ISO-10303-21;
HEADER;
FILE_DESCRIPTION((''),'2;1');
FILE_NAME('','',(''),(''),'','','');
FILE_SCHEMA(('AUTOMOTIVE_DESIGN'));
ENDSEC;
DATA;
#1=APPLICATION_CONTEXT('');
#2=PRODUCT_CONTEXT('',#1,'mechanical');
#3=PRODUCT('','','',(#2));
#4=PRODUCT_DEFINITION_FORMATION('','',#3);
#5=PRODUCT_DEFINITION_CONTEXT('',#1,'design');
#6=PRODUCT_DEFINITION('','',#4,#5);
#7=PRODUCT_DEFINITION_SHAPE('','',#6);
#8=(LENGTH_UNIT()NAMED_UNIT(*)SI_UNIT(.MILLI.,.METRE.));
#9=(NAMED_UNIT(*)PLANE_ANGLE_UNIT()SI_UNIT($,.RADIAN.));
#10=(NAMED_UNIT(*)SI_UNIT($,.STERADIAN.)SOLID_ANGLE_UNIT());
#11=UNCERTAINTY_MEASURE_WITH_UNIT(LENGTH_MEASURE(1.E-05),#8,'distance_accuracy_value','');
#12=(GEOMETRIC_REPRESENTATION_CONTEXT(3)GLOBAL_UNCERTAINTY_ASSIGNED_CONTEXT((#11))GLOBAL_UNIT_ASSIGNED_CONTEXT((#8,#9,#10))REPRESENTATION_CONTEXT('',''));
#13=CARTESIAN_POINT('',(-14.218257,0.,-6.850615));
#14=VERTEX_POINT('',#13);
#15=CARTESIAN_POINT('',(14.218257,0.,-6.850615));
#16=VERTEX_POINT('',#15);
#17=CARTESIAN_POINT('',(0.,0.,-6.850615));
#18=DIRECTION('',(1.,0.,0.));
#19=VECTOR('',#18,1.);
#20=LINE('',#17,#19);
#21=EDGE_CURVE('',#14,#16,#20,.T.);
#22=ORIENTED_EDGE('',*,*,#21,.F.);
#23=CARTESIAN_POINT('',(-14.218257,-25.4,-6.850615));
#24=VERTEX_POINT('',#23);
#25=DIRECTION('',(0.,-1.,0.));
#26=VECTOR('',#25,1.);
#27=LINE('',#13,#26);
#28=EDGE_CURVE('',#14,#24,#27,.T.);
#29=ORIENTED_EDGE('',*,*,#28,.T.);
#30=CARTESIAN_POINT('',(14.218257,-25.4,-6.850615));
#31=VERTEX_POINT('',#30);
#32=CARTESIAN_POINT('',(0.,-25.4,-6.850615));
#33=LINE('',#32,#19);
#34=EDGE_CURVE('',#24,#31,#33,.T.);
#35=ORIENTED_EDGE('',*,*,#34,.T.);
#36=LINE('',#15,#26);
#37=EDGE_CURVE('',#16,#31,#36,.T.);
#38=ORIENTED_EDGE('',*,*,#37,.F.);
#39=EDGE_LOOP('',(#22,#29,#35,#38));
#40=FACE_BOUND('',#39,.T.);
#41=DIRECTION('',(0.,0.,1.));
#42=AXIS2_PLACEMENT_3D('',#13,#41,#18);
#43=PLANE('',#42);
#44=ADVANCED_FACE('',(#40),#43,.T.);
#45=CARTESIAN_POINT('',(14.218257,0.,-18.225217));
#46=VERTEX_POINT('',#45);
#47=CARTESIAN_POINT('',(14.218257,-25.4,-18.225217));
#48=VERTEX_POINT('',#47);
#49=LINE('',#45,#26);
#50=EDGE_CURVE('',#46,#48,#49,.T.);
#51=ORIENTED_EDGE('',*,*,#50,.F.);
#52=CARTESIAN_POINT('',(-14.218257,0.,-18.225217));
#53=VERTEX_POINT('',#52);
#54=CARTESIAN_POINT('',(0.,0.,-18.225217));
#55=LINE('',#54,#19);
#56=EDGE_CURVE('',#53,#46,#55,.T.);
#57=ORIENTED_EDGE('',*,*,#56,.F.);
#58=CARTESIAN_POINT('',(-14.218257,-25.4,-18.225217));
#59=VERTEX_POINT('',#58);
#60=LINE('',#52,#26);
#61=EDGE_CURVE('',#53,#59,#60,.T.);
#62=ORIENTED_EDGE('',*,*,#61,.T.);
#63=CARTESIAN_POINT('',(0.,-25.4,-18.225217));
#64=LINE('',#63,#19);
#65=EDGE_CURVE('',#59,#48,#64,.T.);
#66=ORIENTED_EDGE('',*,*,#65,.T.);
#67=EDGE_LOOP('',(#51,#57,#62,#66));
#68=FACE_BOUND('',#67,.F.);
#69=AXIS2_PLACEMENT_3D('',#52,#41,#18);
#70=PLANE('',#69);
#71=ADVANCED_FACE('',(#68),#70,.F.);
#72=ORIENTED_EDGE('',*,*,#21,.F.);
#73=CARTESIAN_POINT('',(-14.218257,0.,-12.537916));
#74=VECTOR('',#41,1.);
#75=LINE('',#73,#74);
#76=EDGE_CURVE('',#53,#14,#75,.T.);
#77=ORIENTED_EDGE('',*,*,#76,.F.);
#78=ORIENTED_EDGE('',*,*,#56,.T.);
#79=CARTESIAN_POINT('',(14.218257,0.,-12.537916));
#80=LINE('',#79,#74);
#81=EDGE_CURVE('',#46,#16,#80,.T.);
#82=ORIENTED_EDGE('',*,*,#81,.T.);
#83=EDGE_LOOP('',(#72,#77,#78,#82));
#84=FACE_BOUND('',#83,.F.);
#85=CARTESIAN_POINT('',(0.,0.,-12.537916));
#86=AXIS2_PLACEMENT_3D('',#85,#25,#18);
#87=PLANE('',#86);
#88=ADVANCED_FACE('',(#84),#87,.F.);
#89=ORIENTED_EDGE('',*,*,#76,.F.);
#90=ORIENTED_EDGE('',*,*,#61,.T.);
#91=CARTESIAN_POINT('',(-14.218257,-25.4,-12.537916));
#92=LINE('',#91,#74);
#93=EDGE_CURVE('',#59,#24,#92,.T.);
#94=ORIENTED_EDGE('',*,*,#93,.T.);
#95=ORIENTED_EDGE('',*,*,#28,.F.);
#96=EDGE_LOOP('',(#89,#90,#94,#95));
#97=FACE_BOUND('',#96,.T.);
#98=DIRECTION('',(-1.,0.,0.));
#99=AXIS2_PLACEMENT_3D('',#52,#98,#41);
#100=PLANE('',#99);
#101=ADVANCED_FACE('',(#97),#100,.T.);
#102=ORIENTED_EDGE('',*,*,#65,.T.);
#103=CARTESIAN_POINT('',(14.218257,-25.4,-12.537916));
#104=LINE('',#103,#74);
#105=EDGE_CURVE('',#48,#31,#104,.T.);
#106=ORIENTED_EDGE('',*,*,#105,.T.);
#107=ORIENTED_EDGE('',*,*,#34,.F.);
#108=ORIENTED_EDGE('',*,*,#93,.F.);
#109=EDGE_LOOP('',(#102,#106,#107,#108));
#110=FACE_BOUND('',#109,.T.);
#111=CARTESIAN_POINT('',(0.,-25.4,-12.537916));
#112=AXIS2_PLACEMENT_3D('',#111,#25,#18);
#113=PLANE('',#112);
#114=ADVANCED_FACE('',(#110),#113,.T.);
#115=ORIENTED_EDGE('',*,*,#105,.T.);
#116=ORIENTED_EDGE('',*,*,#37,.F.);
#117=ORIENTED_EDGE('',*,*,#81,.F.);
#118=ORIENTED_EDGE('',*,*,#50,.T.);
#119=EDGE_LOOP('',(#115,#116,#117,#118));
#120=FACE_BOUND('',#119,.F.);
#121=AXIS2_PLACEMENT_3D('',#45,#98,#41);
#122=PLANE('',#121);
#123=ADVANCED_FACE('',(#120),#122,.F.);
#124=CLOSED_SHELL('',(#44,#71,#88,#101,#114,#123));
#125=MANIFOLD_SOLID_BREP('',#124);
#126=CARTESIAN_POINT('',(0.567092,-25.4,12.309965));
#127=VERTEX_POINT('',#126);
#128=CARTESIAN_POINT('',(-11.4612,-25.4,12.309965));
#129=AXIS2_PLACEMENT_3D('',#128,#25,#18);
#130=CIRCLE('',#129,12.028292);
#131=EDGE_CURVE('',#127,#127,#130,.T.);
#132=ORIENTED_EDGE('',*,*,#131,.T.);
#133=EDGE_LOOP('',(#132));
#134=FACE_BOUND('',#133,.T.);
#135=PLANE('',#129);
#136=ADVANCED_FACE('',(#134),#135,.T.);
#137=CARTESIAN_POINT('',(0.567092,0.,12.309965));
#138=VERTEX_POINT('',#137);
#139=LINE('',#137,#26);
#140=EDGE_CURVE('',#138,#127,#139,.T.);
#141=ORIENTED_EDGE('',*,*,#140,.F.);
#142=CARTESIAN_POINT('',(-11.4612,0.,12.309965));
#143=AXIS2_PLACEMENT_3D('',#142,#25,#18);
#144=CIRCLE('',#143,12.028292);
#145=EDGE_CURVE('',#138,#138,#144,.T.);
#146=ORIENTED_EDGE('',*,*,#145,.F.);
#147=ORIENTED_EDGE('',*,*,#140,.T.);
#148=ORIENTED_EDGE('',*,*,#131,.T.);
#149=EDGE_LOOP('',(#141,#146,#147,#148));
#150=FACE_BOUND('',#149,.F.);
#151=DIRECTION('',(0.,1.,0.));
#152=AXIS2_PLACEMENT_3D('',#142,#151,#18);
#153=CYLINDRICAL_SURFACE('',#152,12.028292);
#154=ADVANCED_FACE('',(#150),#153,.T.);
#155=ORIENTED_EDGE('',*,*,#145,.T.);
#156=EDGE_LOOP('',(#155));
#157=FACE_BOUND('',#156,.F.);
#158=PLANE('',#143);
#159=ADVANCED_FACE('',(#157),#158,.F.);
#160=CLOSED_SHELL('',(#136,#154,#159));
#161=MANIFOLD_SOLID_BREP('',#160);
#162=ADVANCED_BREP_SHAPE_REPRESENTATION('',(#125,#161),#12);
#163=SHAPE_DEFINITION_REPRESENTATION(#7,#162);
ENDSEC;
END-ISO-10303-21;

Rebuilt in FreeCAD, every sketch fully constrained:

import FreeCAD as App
import Part
import Sketcher

V = App.Vector
Q = App.Units.Quantity

doc = App.newDocument("Part")
body = doc.addObject("PartDesign::Body", "Body")
body.AllowCompound = True

# Sketch on XZ plane
sketch1 = doc.addObject("Sketcher::SketchObject", "Sketch")
body.addObject(sketch1)
sketch1.AttachmentSupport = (doc.XZ_Plane, [""])
sketch1.MapMode = "FlatFace"
sketch1.addGeometry([
    Part.Circle(V(-11, 12, 0), V(0, 0, 1), 12),  # 0
    Part.LineSegment(V(-14, -7, 0), V(-14, -18, 0)),  # 1
    Part.LineSegment(V(-14, -18, 0), V(14, -18, 0)),  # 2
    Part.LineSegment(V(14, -18, 0), V(14, -7, 0)),  # 3
    Part.LineSegment(V(14, -7, 0), V(-14, -7, 0)),  # 4
], False)
sketch1.addConstraint([
    Sketcher.Constraint("Coincident", 1, 2, 2, 1),
    Sketcher.Constraint("Coincident", 2, 2, 3, 1),
    Sketcher.Constraint("Coincident", 3, 2, 4, 1),
    Sketcher.Constraint("Coincident", 4, 2, 1, 1),
    Sketcher.Constraint("Vertical", 1),
    Sketcher.Constraint("Horizontal", 2),
    Sketcher.Constraint("Vertical", 3),
    Sketcher.Constraint("Horizontal", 4),
    Sketcher.Constraint("Diameter", 0, Q("24.056584 mm")),
    Sketcher.Constraint("DistanceX", 0, 3, -1, 1, Q("11.4612 mm")),
    Sketcher.Constraint("DistanceX", 2, 1, 2, 2, Q("28.436514 mm")),
    Sketcher.Constraint("DistanceY", 1, 2, 1, 1, Q("11.374602 mm")),
    Sketcher.Constraint("DistanceY", 1, 2, 0, 3, Q("30.535182 mm")),
    Sketcher.Constraint("DistanceY", -1, 1, 0, 3, Q("12.309965 mm")),
    Sketcher.Constraint("DistanceX", 1, 2, -1, 1, Q("14.218257 mm")),
])
pad1 = doc.addObject("PartDesign::Pad", "Pad")
body.addObject(pad1)
pad1.Profile = sketch1
pad1.Length = Q("1 in")

doc.recompute()
